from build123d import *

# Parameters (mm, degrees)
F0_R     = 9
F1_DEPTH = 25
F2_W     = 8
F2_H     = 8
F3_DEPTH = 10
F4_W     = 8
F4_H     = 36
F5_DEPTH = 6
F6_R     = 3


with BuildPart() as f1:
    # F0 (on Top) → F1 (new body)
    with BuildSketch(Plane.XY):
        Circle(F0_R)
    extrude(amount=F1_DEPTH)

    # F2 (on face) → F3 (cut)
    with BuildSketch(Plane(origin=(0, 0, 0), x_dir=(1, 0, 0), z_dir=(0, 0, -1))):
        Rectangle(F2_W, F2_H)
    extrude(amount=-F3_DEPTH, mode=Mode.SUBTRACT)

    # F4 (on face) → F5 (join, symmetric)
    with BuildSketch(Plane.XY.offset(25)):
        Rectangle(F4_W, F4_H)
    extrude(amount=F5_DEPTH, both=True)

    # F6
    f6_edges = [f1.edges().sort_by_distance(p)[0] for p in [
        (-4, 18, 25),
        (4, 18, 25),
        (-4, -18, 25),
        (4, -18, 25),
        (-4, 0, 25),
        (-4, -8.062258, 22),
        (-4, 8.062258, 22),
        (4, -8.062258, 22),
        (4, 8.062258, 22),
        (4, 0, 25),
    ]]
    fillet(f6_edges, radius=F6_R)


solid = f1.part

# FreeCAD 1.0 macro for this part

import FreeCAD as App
import Part
import Sketcher

V = App.Vector


def edges_at(feature, points):
    """Names of the edges that pass closest to the given points."""
    edges = feature.Shape.Edges
    near = lambda p: min(range(len(edges)), key=lambda i: edges[i].distToShape(Part.Vertex(*p))[0])
    return sorted({f"Edge{near(p) + 1}" for p in points})

doc = App.newDocument("Part")
body = doc.addObject("PartDesign::Body", "Body")

# Sketch on XY plane
sketch1 = body.newObject("Sketcher::SketchObject", "Sketch")
sketch1.AttachmentSupport = (doc.getObject("XY_Plane"), [""])
sketch1.MapMode = "FlatFace"
sketch1.addGeometry(Part.Circle(V(0, 0, 0), V(0, 0, 1), 9), False)
sketch1.addConstraint([
    Sketcher.Constraint("Coincident", 0, 3, -1, 1),
    Sketcher.Constraint("Diameter", 0, 18.0),
])
pad1 = body.newObject("PartDesign::Pad", "Pad")
pad1.Profile = sketch1
pad1.Length = 25

# Sketch on XY plane
sketch2 = body.newObject("Sketcher::SketchObject", "Sketch001")
sketch2.AttachmentSupport = (doc.getObject("XY_Plane"), [""])
sketch2.MapMode = "FlatFace"
sketch2.addGeometry([
    Part.LineSegment(V(-4, -4, 0), V(-4, 4, 0)),
    Part.LineSegment(V(-4, 4, 0), V(4, 4, 0)),
    Part.LineSegment(V(4, 4, 0), V(4, -4, 0)),
    Part.LineSegment(V(4, -4, 0), V(-4, -4, 0)),
], False)
sketch2.addConstraint([
    Sketcher.Constraint("Coincident", 0, 2, 1, 1),
    Sketcher.Constraint("Coincident", 1, 2, 2, 1),
    Sketcher.Constraint("Coincident", 2, 2, 3, 1),
    Sketcher.Constraint("Coincident", 3, 2, 0, 1),
    Sketcher.Constraint("Vertical", 0),
    Sketcher.Constraint("Horizontal", 1),
    Sketcher.Constraint("Vertical", 2),
    Sketcher.Constraint("Horizontal", 3),
    Sketcher.Constraint("Symmetric", 0, 2, 2, 2, -1, 1),
    Sketcher.Constraint("Equal", 3, 0),
    Sketcher.Constraint("DistanceX", 1, 1, 1, 2, 8.0),
])
pocket1 = body.newObject("PartDesign::Pocket", "Pocket")
pocket1.Profile = sketch2
pocket1.Length = 10
pocket1.Reversed = True

# Sketch on XY plane
sketch3 = body.newObject("Sketcher::SketchObject", "Sketch002")
sketch3.AttachmentSupport = (doc.getObject("XY_Plane"), [""])
sketch3.MapMode = "FlatFace"
sketch3.AttachmentOffset = App.Placement(V(0, 0, 25), App.Rotation())
sketch3.addGeometry([
    Part.LineSegment(V(-4, 18, 0), V(-4, -18, 0)),
    Part.LineSegment(V(-4, -18, 0), V(4, -18, 0)),
    Part.LineSegment(V(4, -18, 0), V(4, 18, 0)),
    Part.LineSegment(V(4, 18, 0), V(-4, 18, 0)),
], False)
sketch3.addConstraint([
    Sketcher.Constraint("Coincident", 0, 2, 1, 1),
    Sketcher.Constraint("Coincident", 1, 2, 2, 1),
    Sketcher.Constraint("Coincident", 2, 2, 3, 1),
    Sketcher.Constraint("Coincident", 3, 2, 0, 1),
    Sketcher.Constraint("Vertical", 0),
    Sketcher.Constraint("Horizontal", 1),
    Sketcher.Constraint("Vertical", 2),
    Sketcher.Constraint("Horizontal", 3),
    Sketcher.Constraint("Symmetric", 0, 2, 2, 2, -1, 1),
    Sketcher.Constraint("DistanceX", 1, 1, 1, 2, 8.0),
    Sketcher.Constraint("DistanceY", 0, 2, 0, 1, 36.0),
])
pad2 = body.newObject("PartDesign::Pad", "Pad001")
pad2.Profile = sketch3
pad2.Length = 12
pad2.Midplane = True
doc.recompute()

fillet = body.newObject("PartDesign::Fillet", "Fillet")
fillet.Base = (pad2, edges_at(pad2, [
    (-4, 18, 25),
    (4, 18, 25),
    (-4, -18, 25),
    (4, -18, 25),
    (-4, 0, 25),
    (-4, -8.062, 22),
    (-4, 8.062, 22),
    (4, -8.062, 22),
    (4, 8.062, 22),
    (4, 0, 25),
]))
fillet.Radius = 3

doc.recompute()
